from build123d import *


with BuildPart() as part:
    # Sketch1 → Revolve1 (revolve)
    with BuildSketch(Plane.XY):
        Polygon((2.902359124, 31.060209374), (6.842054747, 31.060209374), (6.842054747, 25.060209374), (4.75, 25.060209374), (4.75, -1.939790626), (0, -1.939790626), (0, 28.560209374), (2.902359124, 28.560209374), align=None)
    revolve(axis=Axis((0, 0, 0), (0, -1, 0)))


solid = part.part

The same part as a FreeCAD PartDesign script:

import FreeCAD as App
import Part
import Sketcher


def add_polygon(sketch, points):
    """Adds a closed chain of lines whose ends are joined by coincident constraints."""
    first, n = sketch.GeometryCount, len(points)
    for a, b in zip(points, points[1:] + points[:1]):
        sketch.addGeometry(Part.LineSegment(App.Vector(*a, 0), App.Vector(*b, 0)), False)
    for i in range(n):
        sketch.addConstraint(Sketcher.Constraint("Coincident", first + i, 2, first + (i + 1) % n, 1))

doc = App.newDocument("Part")
body = doc.addObject("PartDesign::Body", "Body")

# Sketch on XY plane
sketch1 = body.newObject("Sketcher::SketchObject", "Sketch")
sketch1.AttachmentSupport = (doc.getObject("XY_Plane"), [""])
sketch1.MapMode = "FlatFace"
add_polygon(sketch1, [(6.8, 31.1), (2.9, 31.1), (2.9, 28.6), (0, 28.6), (0, -1.9), (4.8, -1.9), (4.8, 25.1), (6.8, 25.1)])  # lines 0-7
sketch1.addConstraint([
    Sketcher.Constraint("Horizontal", 0),
    Sketcher.Constraint("Vertical", 1),
    Sketcher.Constraint("Horizontal", 2),
    Sketcher.Constraint("Vertical", 3),
    Sketcher.Constraint("Horizontal", 4),
    Sketcher.Constraint("Vertical", 5),
    Sketcher.Constraint("Horizontal", 6),
    Sketcher.Constraint("Vertical", 7),
    Sketcher.Constraint("PointOnObject", 2, 2, -2),
    Sketcher.Constraint("DistanceY", 5, 1, 5, 2, 27.0),
    Sketcher.Constraint("DistanceY", 7, 1, 7, 2, 6.0),
    Sketcher.Constraint("DistanceY", 1, 2, 1, 1, 2.5),
    Sketcher.Constraint("DistanceX", 4, 1, 4, 2, 4.75),
    Sketcher.Constraint("DistanceX", 2, 2, 2, 1, 2.902359),
    Sketcher.Constraint("DistanceX", 0, 2, 0, 1, 3.939696),
    Sketcher.Constraint("DistanceY", -1, 1, 0, 2, 31.060209),
])
revolution = body.newObject("PartDesign::Revolution", "Revolution")
revolution.Profile = sketch1
revolution.ReferenceAxis = (sketch1, ["V_Axis"])
revolution.Angle = 360

doc.recompute()
